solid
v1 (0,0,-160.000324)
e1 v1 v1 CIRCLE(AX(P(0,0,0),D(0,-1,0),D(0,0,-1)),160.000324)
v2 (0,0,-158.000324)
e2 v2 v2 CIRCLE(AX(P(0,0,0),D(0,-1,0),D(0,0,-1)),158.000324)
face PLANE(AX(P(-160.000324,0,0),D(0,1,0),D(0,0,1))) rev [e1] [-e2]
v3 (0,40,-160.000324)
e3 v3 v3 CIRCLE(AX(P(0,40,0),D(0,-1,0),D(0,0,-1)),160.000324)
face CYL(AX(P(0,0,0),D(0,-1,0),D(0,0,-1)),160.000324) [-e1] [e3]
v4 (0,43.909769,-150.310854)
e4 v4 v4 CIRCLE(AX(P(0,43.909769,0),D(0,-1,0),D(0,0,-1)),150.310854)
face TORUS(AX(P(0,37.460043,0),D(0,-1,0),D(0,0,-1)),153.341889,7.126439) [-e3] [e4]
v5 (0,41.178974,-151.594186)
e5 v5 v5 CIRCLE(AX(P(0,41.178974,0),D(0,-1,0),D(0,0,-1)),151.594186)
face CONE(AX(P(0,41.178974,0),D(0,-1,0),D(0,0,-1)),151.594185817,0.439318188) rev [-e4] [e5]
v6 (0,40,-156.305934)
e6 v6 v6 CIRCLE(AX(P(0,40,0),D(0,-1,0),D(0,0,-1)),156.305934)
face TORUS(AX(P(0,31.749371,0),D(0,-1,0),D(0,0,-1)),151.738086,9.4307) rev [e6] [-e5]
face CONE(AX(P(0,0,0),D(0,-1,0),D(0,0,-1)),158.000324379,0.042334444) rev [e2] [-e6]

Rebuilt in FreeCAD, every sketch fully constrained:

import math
import FreeCAD as App
import Part
import Sketcher
from FreeCAD import Vector
Q = App.Units.Quantity

doc = App.newDocument("Part")
body = doc.addObject("PartDesign::Body", "Body")

# Sketch on XY plane
sketch1 = body.newObject("Sketcher::SketchObject", "Sketch")
sketch1.AttachmentSupport = (doc.getObject("XY_Plane"), [""])
sketch1.MapMode = "FlatFace"
sketch1.addGeometry(Part.LineSegment(Vector(-160, 40, 0), Vector(-160, 0, 0)), False)
sketch1.addGeometry(Part.LineSegment(Vector(-160, 0, 0), Vector(-158, 0, 0)), False)
sketch1.addGeometry(Part.LineSegment(Vector(-158, 0, 0), Vector(-156.3, 40, 0)), False)
sketch1.addGeometry(Part.ArcOfCircle(Part.Circle(Vector(-151.7, 31.7, 0), Vector(0, 0, 1), 9.4), math.radians(89), math.radians(119)), False)
sketch1.addGeometry(Part.LineSegment(Vector(-151.6, 41.2, 0), Vector(-150.3, 43.9, 0)), False)
sketch1.addGeometry(Part.ArcOfCircle(Part.Circle(Vector(-153.3, 37.5, 0), Vector(0, 0, 1), 7.1), math.radians(65), math.radians(159)), False)
sketch1.addConstraint(Sketcher.Constraint("Coincident", 0, 2, 1, 1))
sketch1.addConstraint(Sketcher.Constraint("Coincident", 1, 2, 2, 1))
sketch1.addConstraint(Sketcher.Constraint("Coincident", 2, 2, 3, 2))
sketch1.addConstraint(Sketcher.Constraint("Coincident", 3, 1, 4, 1))
sketch1.addConstraint(Sketcher.Constraint("Coincident", 4, 2, 5, 1))
sketch1.addConstraint(Sketcher.Constraint("Coincident", 5, 2, 0, 1))
sketch1.addConstraint(Sketcher.Constraint("Vertical", 0))
sketch1.addConstraint(Sketcher.Constraint("Horizontal", 1))
sketch1.addConstraint(Sketcher.Constraint("PointOnObject", 0, 2, -1))
sketch1.addConstraint(Sketcher.Constraint("Horizontal", 2, 2, 5, 2))
sketch1.addConstraint(Sketcher.Constraint("DistanceX", 1, 1, 1, 2, Q("2 mm")))
sketch1.addConstraint(Sketcher.Constraint("DistanceY", 0, 2, 0, 1, Q("40 mm")))
sketch1.addConstraint(Sketcher.Constraint("Radius", 3, Q("9.4307 mm")))
sketch1.addConstraint(Sketcher.Constraint("Radius", 5, Q("7.126439 mm")))
sketch1.addConstraint(Sketcher.Constraint("DistanceX", 3, 3, 3, 1, Q("0.143901 mm")))
sketch1.addConstraint(Sketcher.Constraint("DistanceY", 3, 3, 4, 2, Q("12.160398 mm")))
sketch1.addConstraint(Sketcher.Constraint("Distance", 2, Q("40.035871 mm")))
sketch1.addConstraint(Sketcher.Constraint("DistanceY", -1, 1, 3, 3, Q("31.749371 mm")))
sketch1.addConstraint(Sketcher.Constraint("DistanceX", 5, 3, -1, 1, Q("153.341889 mm")))
sketch1.addConstraint(Sketcher.Constraint("DistanceY", 5, 3, 3, 1, Q("3.71893 mm")))
revolution = body.newObject("PartDesign::Revolution", "Revolution")
revolution.Profile = sketch1
revolution.ReferenceAxis = (sketch1, ["V_Axis"])
revolution.Angle = 360

doc.recompute()
